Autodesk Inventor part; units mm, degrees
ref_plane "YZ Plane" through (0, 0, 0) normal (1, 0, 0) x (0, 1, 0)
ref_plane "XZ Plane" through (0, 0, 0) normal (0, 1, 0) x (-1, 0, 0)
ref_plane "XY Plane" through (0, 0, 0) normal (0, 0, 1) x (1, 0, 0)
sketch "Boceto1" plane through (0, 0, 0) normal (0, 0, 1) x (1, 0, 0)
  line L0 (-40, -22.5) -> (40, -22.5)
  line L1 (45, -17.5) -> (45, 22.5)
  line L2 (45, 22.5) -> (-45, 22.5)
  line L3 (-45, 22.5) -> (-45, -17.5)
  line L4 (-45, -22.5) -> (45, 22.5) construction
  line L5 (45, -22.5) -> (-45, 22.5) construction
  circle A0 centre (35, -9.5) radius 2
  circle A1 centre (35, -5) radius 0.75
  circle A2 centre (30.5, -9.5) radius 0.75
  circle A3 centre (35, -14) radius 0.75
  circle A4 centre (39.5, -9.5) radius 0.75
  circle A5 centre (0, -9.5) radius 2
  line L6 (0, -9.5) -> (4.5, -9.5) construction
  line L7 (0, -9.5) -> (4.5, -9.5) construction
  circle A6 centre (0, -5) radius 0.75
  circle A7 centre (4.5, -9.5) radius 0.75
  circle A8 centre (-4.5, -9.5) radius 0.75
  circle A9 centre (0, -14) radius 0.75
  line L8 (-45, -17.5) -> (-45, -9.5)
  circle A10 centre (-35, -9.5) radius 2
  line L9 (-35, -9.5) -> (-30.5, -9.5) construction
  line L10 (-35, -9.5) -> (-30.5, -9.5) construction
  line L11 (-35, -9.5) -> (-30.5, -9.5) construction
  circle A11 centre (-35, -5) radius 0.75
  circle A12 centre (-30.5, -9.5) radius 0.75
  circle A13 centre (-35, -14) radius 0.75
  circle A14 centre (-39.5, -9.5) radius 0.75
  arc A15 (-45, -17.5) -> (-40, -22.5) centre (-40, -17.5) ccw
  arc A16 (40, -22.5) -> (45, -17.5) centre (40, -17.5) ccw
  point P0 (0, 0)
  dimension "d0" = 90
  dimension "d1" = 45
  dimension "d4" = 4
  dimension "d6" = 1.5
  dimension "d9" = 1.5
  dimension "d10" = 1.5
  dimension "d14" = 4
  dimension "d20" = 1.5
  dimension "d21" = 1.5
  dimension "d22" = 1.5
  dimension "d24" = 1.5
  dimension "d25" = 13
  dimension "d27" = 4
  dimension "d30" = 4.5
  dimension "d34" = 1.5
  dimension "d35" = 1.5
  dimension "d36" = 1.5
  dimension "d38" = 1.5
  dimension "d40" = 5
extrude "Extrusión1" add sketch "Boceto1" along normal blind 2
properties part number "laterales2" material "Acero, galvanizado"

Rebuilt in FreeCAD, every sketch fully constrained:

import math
import FreeCAD as App
import Part
import Sketcher
from FreeCAD import Vector

doc = App.newDocument("Part")
body = doc.addObject("PartDesign::Body", "Body")

# Sketch on XY plane
sketch1 = doc.addObject("Sketcher::SketchObject", "Sketch")
body.addObject(sketch1)
sketch1.AttachmentSupport = (doc.XY_Plane, [""])
sketch1.MapMode = "FlatFace"
sketch1.addGeometry([
    Part.ArcOfCircle(Part.Circle(Vector(-40, -17.5, 0), Vector(0, 0, 1), 5), math.radians(180), math.radians(270)),  # 0
    Part.LineSegment(Vector(-40, -22.5, 0), Vector(40, -22.5, 0)),  # 1
    Part.ArcOfCircle(Part.Circle(Vector(40, -17.5, 0), Vector(0, 0, 1), 5), math.radians(-90), math.radians(0)),  # 2
    Part.LineSegment(Vector(45, -17.5, 0), Vector(45, 22.5, 0)),  # 3
    Part.LineSegment(Vector(45, 22.5, 0), Vector(-45, 22.5, 0)),  # 4
    Part.LineSegment(Vector(-45, 22.5, 0), Vector(-45, -17.5, 0)),  # 5
    Part.Circle(Vector(-35, -14, 0), Vector(0, 0, 1), 0.8),  # 6
    Part.Circle(Vector(-39.5, -9.5, 0), Vector(0, 0, 1), 0.8),  # 7
    Part.Circle(Vector(-35, -9.5, 0), Vector(0, 0, 1), 2),  # 8
    Part.Circle(Vector(-30.5, -9.5, 0), Vector(0, 0, 1), 0.8),  # 9
    Part.Circle(Vector(-35, -5, 0), Vector(0, 0, 1), 0.8),  # 10
    Part.Circle(Vector(-4.5, -9.5, 0), Vector(0, 0, 1), 0.8),  # 11
    Part.Circle(Vector(0, -14, 0), Vector(0, 0, 1), 0.8),  # 12
    Part.Circle(Vector(35, -14, 0), Vector(0, 0, 1), 0.8),  # 13
    Part.Circle(Vector(0, -9.5, 0), Vector(0, 0, 1), 2),  # 14
    Part.Circle(Vector(4.5, -9.5, 0), Vector(0, 0, 1), 0.8),  # 15
    Part.Circle(Vector(0, -5, 0), Vector(0, 0, 1), 0.8),  # 16
    Part.Circle(Vector(30.5, -9.5, 0), Vector(0, 0, 1), 0.8),  # 17
    Part.Circle(Vector(35, -9.5, 0), Vector(0, 0, 1), 2),  # 18
    Part.Circle(Vector(39.5, -9.5, 0), Vector(0, 0, 1), 0.8),  # 19
    Part.Circle(Vector(35, -5, 0), Vector(0, 0, 1), 0.8),  # 20
], False)
sketch1.addConstraint([
    Sketcher.Constraint("Tangent", 0, 2, 1, 1),
    Sketcher.Constraint("Tangent", 1, 2, 2, 1),
    Sketcher.Constraint("Tangent", 2, 2, 3, 1),
    Sketcher.Constraint("Coincident", 3, 2, 4, 1),
    Sketcher.Constraint("Coincident", 4, 2, 5, 1),
    Sketcher.Constraint("Tangent", 5, 2, 0, 1),
    Sketcher.Constraint("Horizontal", 1),
    Sketcher.Constraint("Vertical", 3),
    Sketcher.Constraint("Horizontal", 4),
    Sketcher.Constraint("Vertical", 5),
    Sketcher.Constraint("Equal", 0, 2),
    Sketcher.Constraint("Equal", 6, 7),
    Sketcher.Constraint("Equal", 7, 9),
    Sketcher.Constraint("Equal", 9, 10),
    Sketcher.Constraint("Equal", 10, 11),
    Sketcher.Constraint("Equal", 11, 12),
    Sketcher.Constraint("Equal", 12, 13),
    Sketcher.Constraint("Equal", 8, 14),
    Sketcher.Constraint("Equal", 13, 15),
    Sketcher.Constraint("Equal", 15, 16),
    Sketcher.Constraint("Equal", 16, 17),
    Sketcher.Constraint("Equal", 14, 18),
    Sketcher.Constraint("Equal", 17, 19),
    Sketcher.Constraint("Equal", 19, 20),
    Sketcher.Constraint("Symmetric", 6, 3, 13, 3, -2),
    Sketcher.Constraint("Symmetric", 11, 3, 15, 3, -2),
    Sketcher.Constraint("Symmetric", 9, 3, 17, 3, -2),
    Sketcher.Constraint("Symmetric", 8, 3, 18, 3, -2),
    Sketcher.Constraint("Symmetric", 7, 3, 19, 3, -2),
    Sketcher.Constraint("Symmetric", 10, 3, 20, 3, -2),
    Sketcher.Constraint("PointOnObject", 12, 3, -2),
    Sketcher.Constraint("PointOnObject", 14, 3, -2),
    Sketcher.Constraint("PointOnObject", 16, 3, -2),
    Sketcher.Constraint("Horizontal", 7, 3, 8, 3),
    Sketcher.Constraint("Horizontal", 8, 3, 9, 3),
    Sketcher.Constraint("Horizontal", 9, 3, 11, 3),
    Sketcher.Constraint("Horizontal", 6, 3, 12, 3),
    Sketcher.Constraint("Horizontal", 11, 3, 14, 3),
    Sketcher.Constraint("Horizontal", 10, 3, 16, 3),
    Sketcher.Constraint("Vertical", 6, 3, 8, 3),
    Sketcher.Constraint("Vertical", 8, 3, 10, 3),
    Sketcher.Constraint("Diameter", 8, 4.0),
    Sketcher.Constraint("Radius", 0, 5.0),
    Sketcher.Constraint("Diameter", 6, 1.5),
    Sketcher.Constraint("DistanceX", 4, 2, 4, 1, 90.0),
    Sketcher.Constraint("DistanceY", 10, 3, -1, 1, 5.0),
    Sketcher.Constraint("DistanceX", -1, 1, 2, 2, 45.0),
    Sketcher.Constraint("DistanceX", 0, 3, 6, 3, 5.0),
    Sketcher.Constraint("DistanceY", 0, 2, 7, 3, 13.0),
    Sketcher.Constraint("DistanceX", 11, 3, -1, 1, 4.5),
    Sketcher.Constraint("DistanceX", 7, 3, 6, 3, 4.5),
    Sketcher.Constraint("DistanceY", 6, 3, 7, 3, 4.5),
    Sketcher.Constraint("DistanceX", 8, 3, 9, 3, 4.5),
    Sketcher.Constraint("DistanceY", 8, 3, 10, 3, 4.5),
    Sketcher.Constraint("DistanceY", 3, 1, 3, 2, 40.0),
])
pad1 = doc.addObject("PartDesign::Pad", "Pad")
body.addObject(pad1)
pad1.Profile = sketch1
pad1.Length = 2

doc.recompute()
